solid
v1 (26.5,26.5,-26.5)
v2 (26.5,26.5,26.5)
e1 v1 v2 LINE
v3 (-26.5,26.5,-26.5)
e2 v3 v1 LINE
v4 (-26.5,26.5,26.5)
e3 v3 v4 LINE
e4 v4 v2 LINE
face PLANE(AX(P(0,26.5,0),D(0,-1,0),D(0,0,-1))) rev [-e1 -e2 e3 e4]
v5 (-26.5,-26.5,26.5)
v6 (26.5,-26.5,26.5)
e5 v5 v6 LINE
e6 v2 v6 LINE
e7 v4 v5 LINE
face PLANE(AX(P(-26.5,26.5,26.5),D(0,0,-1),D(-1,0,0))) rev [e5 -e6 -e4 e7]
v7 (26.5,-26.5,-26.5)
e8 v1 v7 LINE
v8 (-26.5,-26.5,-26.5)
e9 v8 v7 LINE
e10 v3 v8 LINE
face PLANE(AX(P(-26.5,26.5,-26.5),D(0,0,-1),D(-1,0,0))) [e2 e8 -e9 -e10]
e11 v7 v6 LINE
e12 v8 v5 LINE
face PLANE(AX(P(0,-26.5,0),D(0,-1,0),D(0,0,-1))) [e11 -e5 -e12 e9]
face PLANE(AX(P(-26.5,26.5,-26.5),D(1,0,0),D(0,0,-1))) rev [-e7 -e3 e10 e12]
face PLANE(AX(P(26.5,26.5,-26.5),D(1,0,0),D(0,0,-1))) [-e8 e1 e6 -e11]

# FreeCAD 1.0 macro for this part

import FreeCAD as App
import Part
import Sketcher

doc = App.newDocument("Part")
params = doc.addObject("Spreadsheet::Sheet", "Params")
for row, (alias, value) in enumerate([
    ("sketch1_width", "53 mm"),
    ("pad1_length", "53 mm"),
], start=1):
    params.set(f"A{row}", alias)
    params.set(f"B{row}", "=" + value)
    params.setAlias(f"B{row}", alias)

body = doc.addObject("PartDesign::Body", "Body")

sketch1 = doc.addObject("Sketcher::SketchObject", "Sketch")
body.addObject(sketch1)
sketch1.AttachmentSupport = (doc.XZ_Plane, [""])
sketch1.MapMode = "FlatFace"
sketch1.addGeometry(Part.LineSegment(App.Vector(-26, -26, 0), App.Vector(-26, 26, 0)), False)
sketch1.addGeometry(Part.LineSegment(App.Vector(-26, 26, 0), App.Vector(26, 26, 0)), False)
sketch1.addGeometry(Part.LineSegment(App.Vector(26, 26, 0), App.Vector(26, -26, 0)), False)
sketch1.addGeometry(Part.LineSegment(App.Vector(26, -26, 0), App.Vector(-26, -26, 0)), False)
sketch1.addConstraint(Sketcher.Constraint("Coincident", 0, 2, 1, 1))
sketch1.addConstraint(Sketcher.Constraint("Coincident", 1, 2, 2, 1))
sketch1.addConstraint(Sketcher.Constraint("Coincident", 2, 2, 3, 1))
sketch1.addConstraint(Sketcher.Constraint("Coincident", 3, 2, 0, 1))
sketch1.addConstraint(Sketcher.Constraint("Vertical", 0))
sketch1.addConstraint(Sketcher.Constraint("Horizontal", 1))
sketch1.addConstraint(Sketcher.Constraint("Vertical", 2))
sketch1.addConstraint(Sketcher.Constraint("Horizontal", 3))
sketch1.addConstraint(Sketcher.Constraint("Symmetric", 0, 2, 2, 2, -1, 1))
sketch1.addConstraint(Sketcher.Constraint("Equal", 3, 0))
sketch1.addConstraint(Sketcher.Constraint("DistanceX", 1, 1, 1, 2, 53.0))
sketch1.setExpression("Constraints[10]", "Params.sketch1_width")
pad1 = doc.addObject("PartDesign::Pad", "Pad")
body.addObject(pad1)
pad1.Profile = sketch1
pad1.setExpression("Length", "Params.pad1_length")
pad1.Midplane = True

doc.recompute()
